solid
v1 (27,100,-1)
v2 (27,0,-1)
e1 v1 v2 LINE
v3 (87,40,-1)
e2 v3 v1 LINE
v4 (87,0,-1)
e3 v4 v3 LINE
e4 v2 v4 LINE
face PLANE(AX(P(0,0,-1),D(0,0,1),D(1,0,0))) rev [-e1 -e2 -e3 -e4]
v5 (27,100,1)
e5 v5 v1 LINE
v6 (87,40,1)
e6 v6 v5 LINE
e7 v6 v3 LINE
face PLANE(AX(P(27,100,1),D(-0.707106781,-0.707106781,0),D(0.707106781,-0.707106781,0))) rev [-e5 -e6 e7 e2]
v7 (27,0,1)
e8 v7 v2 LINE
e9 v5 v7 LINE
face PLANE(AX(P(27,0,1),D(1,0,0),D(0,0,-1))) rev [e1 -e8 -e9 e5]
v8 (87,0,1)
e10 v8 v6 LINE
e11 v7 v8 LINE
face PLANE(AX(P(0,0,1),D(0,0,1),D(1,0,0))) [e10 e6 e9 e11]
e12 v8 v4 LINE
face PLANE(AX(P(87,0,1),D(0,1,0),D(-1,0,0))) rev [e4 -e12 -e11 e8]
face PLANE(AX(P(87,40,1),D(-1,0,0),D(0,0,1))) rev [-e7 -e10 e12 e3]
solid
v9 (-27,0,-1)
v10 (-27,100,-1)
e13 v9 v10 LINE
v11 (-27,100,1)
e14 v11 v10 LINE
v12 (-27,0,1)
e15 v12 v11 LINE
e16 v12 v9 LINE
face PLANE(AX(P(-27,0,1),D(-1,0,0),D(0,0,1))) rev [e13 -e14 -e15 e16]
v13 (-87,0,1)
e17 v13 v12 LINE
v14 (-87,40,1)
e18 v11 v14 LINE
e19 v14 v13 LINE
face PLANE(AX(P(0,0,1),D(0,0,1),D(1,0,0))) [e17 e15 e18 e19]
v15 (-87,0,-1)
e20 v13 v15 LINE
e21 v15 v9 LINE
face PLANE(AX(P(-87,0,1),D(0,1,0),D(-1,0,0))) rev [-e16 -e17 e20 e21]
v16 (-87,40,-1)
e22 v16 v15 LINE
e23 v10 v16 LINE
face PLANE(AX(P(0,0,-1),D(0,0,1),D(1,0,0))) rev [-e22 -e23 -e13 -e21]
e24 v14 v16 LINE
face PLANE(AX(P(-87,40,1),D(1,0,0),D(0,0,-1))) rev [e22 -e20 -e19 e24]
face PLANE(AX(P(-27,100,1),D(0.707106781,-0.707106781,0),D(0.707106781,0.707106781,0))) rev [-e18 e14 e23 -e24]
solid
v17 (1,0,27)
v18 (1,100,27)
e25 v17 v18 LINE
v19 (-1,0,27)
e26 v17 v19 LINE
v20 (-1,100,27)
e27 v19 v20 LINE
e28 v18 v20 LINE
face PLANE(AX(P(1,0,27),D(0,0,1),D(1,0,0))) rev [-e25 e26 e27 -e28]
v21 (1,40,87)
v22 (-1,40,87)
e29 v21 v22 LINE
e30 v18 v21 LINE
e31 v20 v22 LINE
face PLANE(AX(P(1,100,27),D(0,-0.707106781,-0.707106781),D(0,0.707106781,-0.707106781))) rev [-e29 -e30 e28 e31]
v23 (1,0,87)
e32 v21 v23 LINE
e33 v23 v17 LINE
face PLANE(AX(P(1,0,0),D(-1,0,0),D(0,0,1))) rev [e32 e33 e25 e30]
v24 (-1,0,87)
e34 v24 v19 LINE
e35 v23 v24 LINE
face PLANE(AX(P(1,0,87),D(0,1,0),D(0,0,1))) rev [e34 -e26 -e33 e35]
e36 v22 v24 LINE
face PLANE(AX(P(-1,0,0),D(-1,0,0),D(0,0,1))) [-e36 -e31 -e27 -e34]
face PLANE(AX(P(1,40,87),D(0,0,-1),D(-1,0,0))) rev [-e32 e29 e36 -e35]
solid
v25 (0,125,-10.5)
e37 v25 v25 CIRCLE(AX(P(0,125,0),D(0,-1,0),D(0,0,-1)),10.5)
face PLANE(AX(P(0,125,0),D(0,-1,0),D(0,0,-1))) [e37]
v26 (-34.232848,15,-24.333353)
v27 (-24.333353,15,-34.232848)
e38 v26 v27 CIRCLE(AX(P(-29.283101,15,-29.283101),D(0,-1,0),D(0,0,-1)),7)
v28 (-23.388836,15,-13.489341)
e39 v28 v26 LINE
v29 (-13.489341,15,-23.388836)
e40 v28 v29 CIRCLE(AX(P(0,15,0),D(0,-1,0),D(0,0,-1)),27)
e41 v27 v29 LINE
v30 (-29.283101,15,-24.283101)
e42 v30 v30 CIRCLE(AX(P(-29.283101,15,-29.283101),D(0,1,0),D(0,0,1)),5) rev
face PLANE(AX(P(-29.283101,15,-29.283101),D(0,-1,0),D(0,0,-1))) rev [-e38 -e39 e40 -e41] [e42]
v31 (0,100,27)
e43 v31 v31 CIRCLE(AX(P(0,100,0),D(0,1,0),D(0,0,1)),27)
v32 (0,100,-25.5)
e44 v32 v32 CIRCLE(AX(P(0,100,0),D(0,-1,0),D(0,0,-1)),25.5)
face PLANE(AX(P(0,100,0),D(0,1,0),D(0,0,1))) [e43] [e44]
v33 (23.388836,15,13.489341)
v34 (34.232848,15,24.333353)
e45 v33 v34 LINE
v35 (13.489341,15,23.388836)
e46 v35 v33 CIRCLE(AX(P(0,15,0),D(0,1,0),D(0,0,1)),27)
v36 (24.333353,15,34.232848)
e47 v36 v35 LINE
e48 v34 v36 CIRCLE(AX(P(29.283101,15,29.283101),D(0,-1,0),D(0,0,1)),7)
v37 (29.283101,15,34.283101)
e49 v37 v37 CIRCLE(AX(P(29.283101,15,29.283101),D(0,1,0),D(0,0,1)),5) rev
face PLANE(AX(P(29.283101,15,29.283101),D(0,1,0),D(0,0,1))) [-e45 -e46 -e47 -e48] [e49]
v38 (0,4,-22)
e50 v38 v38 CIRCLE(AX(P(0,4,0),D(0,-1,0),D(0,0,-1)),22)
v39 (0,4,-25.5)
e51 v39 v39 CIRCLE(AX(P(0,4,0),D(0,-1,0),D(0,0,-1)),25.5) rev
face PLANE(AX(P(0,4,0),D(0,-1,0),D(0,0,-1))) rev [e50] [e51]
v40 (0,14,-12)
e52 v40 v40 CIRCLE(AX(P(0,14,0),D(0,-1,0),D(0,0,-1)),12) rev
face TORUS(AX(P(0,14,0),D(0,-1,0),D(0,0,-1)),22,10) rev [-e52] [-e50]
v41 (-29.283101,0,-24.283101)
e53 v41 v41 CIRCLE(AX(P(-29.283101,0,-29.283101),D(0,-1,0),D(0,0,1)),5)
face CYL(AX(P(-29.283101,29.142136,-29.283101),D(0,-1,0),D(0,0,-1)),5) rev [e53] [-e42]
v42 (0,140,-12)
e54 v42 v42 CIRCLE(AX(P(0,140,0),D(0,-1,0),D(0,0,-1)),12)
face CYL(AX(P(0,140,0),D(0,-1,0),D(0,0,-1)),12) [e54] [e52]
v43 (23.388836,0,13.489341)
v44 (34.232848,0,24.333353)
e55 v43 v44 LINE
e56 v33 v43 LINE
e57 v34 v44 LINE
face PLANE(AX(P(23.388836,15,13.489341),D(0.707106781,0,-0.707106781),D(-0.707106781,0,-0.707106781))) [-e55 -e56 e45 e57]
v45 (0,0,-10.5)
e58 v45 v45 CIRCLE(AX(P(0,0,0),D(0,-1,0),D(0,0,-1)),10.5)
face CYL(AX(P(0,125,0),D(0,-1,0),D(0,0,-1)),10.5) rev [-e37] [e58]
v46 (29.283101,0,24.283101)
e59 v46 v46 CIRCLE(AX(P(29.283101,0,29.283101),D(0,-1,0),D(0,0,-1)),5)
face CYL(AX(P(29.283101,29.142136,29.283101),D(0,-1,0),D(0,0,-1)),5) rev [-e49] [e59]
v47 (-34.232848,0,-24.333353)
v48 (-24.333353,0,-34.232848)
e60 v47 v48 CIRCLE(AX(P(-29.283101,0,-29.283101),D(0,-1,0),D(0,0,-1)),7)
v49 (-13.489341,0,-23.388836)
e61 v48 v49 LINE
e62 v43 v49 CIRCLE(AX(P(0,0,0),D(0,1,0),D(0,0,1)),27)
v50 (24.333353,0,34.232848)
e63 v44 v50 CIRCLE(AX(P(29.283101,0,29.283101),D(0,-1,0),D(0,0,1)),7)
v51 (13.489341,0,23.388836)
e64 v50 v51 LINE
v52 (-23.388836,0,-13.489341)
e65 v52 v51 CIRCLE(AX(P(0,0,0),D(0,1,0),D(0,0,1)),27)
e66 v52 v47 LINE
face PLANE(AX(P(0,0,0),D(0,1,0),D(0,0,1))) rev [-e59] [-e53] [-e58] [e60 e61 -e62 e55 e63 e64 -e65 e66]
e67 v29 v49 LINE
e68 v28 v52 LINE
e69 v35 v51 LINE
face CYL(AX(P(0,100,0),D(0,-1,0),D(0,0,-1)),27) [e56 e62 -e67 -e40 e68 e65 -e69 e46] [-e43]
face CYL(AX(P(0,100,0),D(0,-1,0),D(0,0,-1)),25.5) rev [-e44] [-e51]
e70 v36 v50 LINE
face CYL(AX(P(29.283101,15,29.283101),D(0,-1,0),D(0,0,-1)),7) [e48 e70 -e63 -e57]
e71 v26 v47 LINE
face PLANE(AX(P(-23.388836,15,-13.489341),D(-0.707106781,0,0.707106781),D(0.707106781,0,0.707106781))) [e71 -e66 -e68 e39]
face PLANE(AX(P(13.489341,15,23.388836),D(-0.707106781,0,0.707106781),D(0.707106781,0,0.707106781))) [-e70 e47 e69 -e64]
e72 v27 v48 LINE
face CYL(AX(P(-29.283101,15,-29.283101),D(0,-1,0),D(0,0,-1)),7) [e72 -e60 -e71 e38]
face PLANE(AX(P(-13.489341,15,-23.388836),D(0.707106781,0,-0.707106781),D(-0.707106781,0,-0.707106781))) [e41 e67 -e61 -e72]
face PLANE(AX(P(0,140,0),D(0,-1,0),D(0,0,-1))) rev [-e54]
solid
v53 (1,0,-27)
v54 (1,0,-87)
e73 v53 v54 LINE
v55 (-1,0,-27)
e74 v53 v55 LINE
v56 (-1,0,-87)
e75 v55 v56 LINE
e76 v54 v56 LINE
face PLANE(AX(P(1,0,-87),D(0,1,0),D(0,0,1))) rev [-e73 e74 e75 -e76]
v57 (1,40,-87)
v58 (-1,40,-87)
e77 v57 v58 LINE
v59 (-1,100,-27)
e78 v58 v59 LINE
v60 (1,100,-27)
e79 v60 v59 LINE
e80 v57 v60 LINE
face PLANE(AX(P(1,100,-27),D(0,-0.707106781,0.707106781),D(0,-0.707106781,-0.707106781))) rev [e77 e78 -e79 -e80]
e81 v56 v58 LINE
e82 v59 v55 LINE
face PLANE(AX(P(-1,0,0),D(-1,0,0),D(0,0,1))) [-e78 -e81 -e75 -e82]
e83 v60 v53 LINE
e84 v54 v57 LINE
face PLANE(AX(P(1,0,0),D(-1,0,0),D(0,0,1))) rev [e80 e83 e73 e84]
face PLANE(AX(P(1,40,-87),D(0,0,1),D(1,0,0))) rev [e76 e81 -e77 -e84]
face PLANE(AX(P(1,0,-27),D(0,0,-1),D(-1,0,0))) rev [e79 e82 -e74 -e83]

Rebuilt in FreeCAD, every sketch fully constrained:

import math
import FreeCAD as App
import Part
import Sketcher
from FreeCAD import Vector
Q = App.Units.Quantity


def edges_at(feature, points):
    """Names of the edges that pass closest to the given points."""
    edges = feature.Shape.Edges
    near = lambda p: min(range(len(edges)), key=lambda i: edges[i].distToShape(Part.Vertex(*p))[0])
    return sorted({f"Edge{near(p) + 1}" for p in points})


def add_polygon(sketch, points):
    """Adds a closed chain of lines whose ends are joined by coincident constraints."""
    first, n = sketch.GeometryCount, len(points)
    for a, b in zip(points, points[1:] + points[:1]):
        sketch.addGeometry(Part.LineSegment(App.Vector(*a, 0), App.Vector(*b, 0)), False)
    for i in range(n):
        sketch.addConstraint(Sketcher.Constraint("Coincident", first + i, 2, first + (i + 1) % n, 1))

doc = App.newDocument("Part")
body = doc.addObject("PartDesign::Body", "Body")

sketch1 = doc.addObject("Sketcher::SketchObject", "Sketch")
body.addObject(sketch1)
sketch1.AttachmentSupport = (doc.XZ_Plane, [""])
sketch1.MapMode = "FlatFace"
sketch1.addGeometry(Part.Circle(Vector(0, 0, 0), Vector(0, 0, 1), 27), False)
sketch1.addConstraint([
    Sketcher.Constraint("Coincident", 0, 3, -1, 1),
    Sketcher.Constraint("Diameter", 0, Q("54 mm")),
])
pad1 = doc.addObject("PartDesign::Pad", "Pad")
body.addObject(pad1)
pad1.Profile = sketch1
pad1.Length = 100
pad1.Reversed = True

sketch2 = doc.addObject("Sketcher::SketchObject", "Sketch001")
body.addObject(sketch2)
sketch2.AttachmentSupport = (doc.XZ_Plane, [""])
sketch2.MapMode = "FlatFace"
sketch2.addGeometry(Part.Circle(Vector(0, 0, 0), Vector(0, 0, 1), 25.5), False)
sketch2.addConstraint([
    Sketcher.Constraint("Coincident", 0, 3, -1, 1),
    Sketcher.Constraint("Diameter", 0, Q("51 mm")),
])
pocket1 = doc.addObject("PartDesign::Pocket", "Pocket")
body.addObject(pocket1)
pocket1.Profile = sketch2
pocket1.Type = "ThroughAll"

sketch3 = doc.addObject("Sketcher::SketchObject", "Sketch002")
body.addObject(sketch3)
sketch3.AttachmentSupport = (doc.XZ_Plane, [""])
sketch3.MapMode = "FlatFace"
sketch3.addGeometry(Part.Circle(Vector(0, 0, 0), Vector(0, 0, 1), 27), False)
sketch3.addConstraint([
    Sketcher.Constraint("Coincident", 0, 3, -1, 1),
    Sketcher.Constraint("Diameter", 0, Q("54 mm")),
])
pad2 = doc.addObject("PartDesign::Pad", "Pad001")
body.addObject(pad2)
pad2.Profile = sketch3
pad2.Length = 4
pad2.Reversed = True

sketch4 = doc.addObject("Sketcher::SketchObject", "Sketch003")
body.addObject(sketch4)
sketch4.AttachmentSupport = (doc.XZ_Plane, [""])
sketch4.MapMode = "FlatFace"
sketch4.addGeometry(Part.Circle(Vector(0, 0, 0), Vector(0, 0, 1), 12), False)
sketch4.addConstraint([
    Sketcher.Constraint("Coincident", 0, 3, -1, 1),
    Sketcher.Constraint("Diameter", 0, Q("24 mm")),
])
pad3 = doc.addObject("PartDesign::Pad", "Pad002")
body.addObject(pad3)
pad3.Profile = sketch4
pad3.Length = 140
pad3.Reversed = True

sketch5 = doc.addObject("Sketcher::SketchObject", "Sketch004")
body.addObject(sketch5)
sketch5.AttachmentSupport = (doc.XZ_Plane, [""])
sketch5.MapMode = "FlatFace"
sketch5.addGeometry(Part.Circle(Vector(0, 0, 0), Vector(0, 0, 1), 10.5), False)
sketch5.addConstraint([
    Sketcher.Constraint("Coincident", 0, 3, -1, 1),
    Sketcher.Constraint("Diameter", 0, Q("21 mm")),
])
pocket2 = doc.addObject("PartDesign::Pocket", "Pocket001")
body.addObject(pocket2)
pocket2.Profile = sketch5
pocket2.Length = 125
doc.recompute()

fillet = doc.addObject("PartDesign::Fillet", "Fillet")
body.addObject(fillet)
fillet.Base = (pocket2, edges_at(pocket2, [(0, 4, 12)]))
fillet.Radius = 10

sketch6 = doc.addObject("Sketcher::SketchObject", "Sketch005")
body.addObject(sketch6)
sketch6.AttachmentSupport = (doc.XZ_Plane, [""])
sketch6.MapMode = "FlatFace"
sketch6.addGeometry([
    Part.LineSegment(Vector(24.333353, 34.232848, 0), Vector(13.489341, 23.388836, 0)),
    Part.LineSegment(Vector(13.489341, 23.388836, 0), Vector(23.388836, 13.489341, 0)),
    Part.LineSegment(Vector(23.388836, 13.489341, 0), Vector(34.232848, 24.333353, 0)),
    Part.ArcOfCircle(Part.Circle(Vector(29.283101, 29.283101, 0), Vector(0, 0, 1), 7), math.radians(-45), math.radians(135)),
    Part.LineSegment(Vector(-23.388836, -13.489341, 0), Vector(-34.232848, -24.333353, 0)),
    Part.ArcOfCircle(Part.Circle(Vector(-29.283101, -29.283101, 0), Vector(0, 0, 1), 7), math.radians(135), math.radians(315)),
    Part.LineSegment(Vector(-24.333353, -34.232848, 0), Vector(-13.489341, -23.388836, 0)),
    Part.LineSegment(Vector(-13.489341, -23.388836, 0), Vector(-23.388836, -13.489341, 0)),
], False)
sketch6.addConstraint([
    Sketcher.Constraint("Coincident", 0, 2, 1, 1),
    Sketcher.Constraint("Coincident", 1, 2, 2, 1),
    Sketcher.Constraint("Tangent", 2, 2, 3, 1),
    Sketcher.Constraint("Tangent", 3, 2, 0, 1),
    Sketcher.Constraint("Tangent", 4, 2, 5, 1),
    Sketcher.Constraint("Tangent", 5, 2, 6, 1),
    Sketcher.Constraint("Coincident", 6, 2, 7, 1),
    Sketcher.Constraint("Coincident", 7, 2, 4, 1),
    Sketcher.Constraint("Equal", 3, 5),
    Sketcher.Constraint("Symmetric", 3, 3, 5, 3, -1, 1),
    Sketcher.Constraint("Symmetric", 0, 2, 6, 2, -1, 1),
    Sketcher.Constraint("Symmetric", 1, 2, 7, 2, -1, 1),
    Sketcher.Constraint("Perpendicular", 0, 1),
    Sketcher.Constraint("Perpendicular", 1, 2),
    Sketcher.Constraint("Radius", 3, Q("7 mm")),
    Sketcher.Constraint("Angle", 0, Q("-135 deg")),
    Sketcher.Constraint("DistanceX", -1, 1, 3, 3, Q("29.283101 mm")),
    Sketcher.Constraint("DistanceY", -1, 1, 3, 3, Q("29.283101 mm")),
    Sketcher.Constraint("Distance", 0, Q("15.335749 mm")),
])
pad4 = doc.addObject("PartDesign::Pad", "Pad003")
body.addObject(pad4)
pad4.Profile = sketch6
pad4.Length = 15
pad4.Reversed = True

sketch7 = doc.addObject("Sketcher::SketchObject", "Sketch006")
body.addObject(sketch7)
sketch7.AttachmentSupport = (doc.XZ_Plane, [""])
sketch7.MapMode = "FlatFace"
sketch7.addGeometry([
    Part.Circle(Vector(29.283101, 29.283101, 0), Vector(0, 0, 1), 5),
    Part.Circle(Vector(-29.283101, -29.283101, 0), Vector(0, 0, 1), 5),
], False)
sketch7.addConstraint([
    Sketcher.Constraint("Equal", 0, 1),
    Sketcher.Constraint("Symmetric", 0, 3, 1, 3, -1, 1),
    Sketcher.Constraint("Diameter", 0, Q("10 mm")),
    Sketcher.Constraint("DistanceX", -1, 1, 0, 3, Q("29.283101 mm")),
    Sketcher.Constraint("DistanceY", -1, 1, 0, 3, Q("29.283101 mm")),
])
pocket3 = doc.addObject("PartDesign::Pocket", "Pocket002")
body.addObject(pocket3)
pocket3.Profile = sketch7
pocket3.Length = 15
body2 = doc.addObject("PartDesign::Body", "Body001")

sketch8 = doc.addObject("Sketcher::SketchObject", "Sketch007")
body2.addObject(sketch8)
sketch8.AttachmentSupport = (doc.getObject("XY_Plane001"), [""])
sketch8.MapMode = "FlatFace"
add_polygon(sketch8, [(87, 40), (27, 100), (27, 0), (87, 0)])
sketch8.addConstraint([
    Sketcher.Constraint("Vertical", 1),
    Sketcher.Constraint("Horizontal", 2),
    Sketcher.Constraint("Vertical", 3),
    Sketcher.Constraint("PointOnObject", 1, 2, -1),
    Sketcher.Constraint("DistanceX", 2, 1, 2, 2, Q("60 mm")),
    Sketcher.Constraint("DistanceY", 1, 2, 1, 1, Q("100 mm")),
    Sketcher.Constraint("DistanceY", 3, 1, 3, 2, Q("40 mm")),
    Sketcher.Constraint("DistanceX", -1, 1, 0, 2, Q("27 mm")),
])
pad5 = doc.addObject("PartDesign::Pad", "Pad004")
body2.addObject(pad5)
pad5.Profile = sketch8
pad5.Length = 2
pad5.Midplane = True
body3 = doc.addObject("PartDesign::Body", "Body002")

sketch9 = doc.addObject("Sketcher::SketchObject", "Sketch008")
body3.addObject(sketch9)
sketch9.AttachmentSupport = (doc.getObject("XY_Plane002"), [""])
sketch9.MapMode = "FlatFace"
add_polygon(sketch9, [(-87, 0), (-27, 0), (-27, 100), (-87, 40)])
sketch9.addConstraint([
    Sketcher.Constraint("Horizontal", 0),
    Sketcher.Constraint("Vertical", 1),
    Sketcher.Constraint("Vertical", 3),
    Sketcher.Constraint("PointOnObject", 0, 2, -1),
    Sketcher.Constraint("DistanceX", 0, 1, 0, 2, Q("60 mm")),
    Sketcher.Constraint("DistanceY", 1, 1, 1, 2, Q("100 mm")),
    Sketcher.Constraint("DistanceY", 3, 2, 3, 1, Q("40 mm")),
    Sketcher.Constraint("DistanceX", 0, 2, -1, 1, Q("27 mm")),
])
pad6 = doc.addObject("PartDesign::Pad", "Pad005")
body3.addObject(pad6)
pad6.Profile = sketch9
pad6.Length = 2
pad6.Midplane = True
body4 = doc.addObject("PartDesign::Body", "Body003")

sketch10 = doc.addObject("Sketcher::SketchObject", "Sketch009")
body4.addObject(sketch10)
sketch10.AttachmentSupport = (doc.getObject("YZ_Plane003"), [""])
sketch10.MapMode = "FlatFace"
add_polygon(sketch10, [(100, 27), (40, 87), (0, 87), (0, 27)])
sketch10.addConstraint([
    Sketcher.Constraint("Horizontal", 1),
    Sketcher.Constraint("Vertical", 2),
    Sketcher.Constraint("Horizontal", 3),
    Sketcher.Constraint("PointOnObject", 1, 2, -2),
    Sketcher.Constraint("DistanceX", 1, 2, 1, 1, Q("40 mm")),
    Sketcher.Constraint("DistanceX", 3, 1, 3, 2, Q("100 mm")),
    Sketcher.Constraint("DistanceY", 2, 2, 2, 1, Q("60 mm")),
    Sketcher.Constraint("DistanceY", -1, 1, 0, 2, Q("87 mm")),
])
pad7 = doc.addObject("PartDesign::Pad", "Pad006")
body4.addObject(pad7)
pad7.Profile = sketch10
pad7.Length = 2
pad7.Midplane = True
body5 = doc.addObject("PartDesign::Body", "Body004")

sketch11 = doc.addObject("Sketcher::SketchObject", "Sketch010")
body5.addObject(sketch11)
sketch11.AttachmentSupport = (doc.getObject("YZ_Plane004"), [""])
sketch11.MapMode = "FlatFace"
add_polygon(sketch11, [(100, -27), (0, -27), (0, -87), (40, -87)])
sketch11.addConstraint([
    Sketcher.Constraint("Horizontal", 0),
    Sketcher.Constraint("Vertical", 1),
    Sketcher.Constraint("Horizontal", 2),
    Sketcher.Constraint("PointOnObject", 0, 2, -2),
    Sketcher.Constraint("DistanceX", 0, 2, 0, 1, Q("100 mm")),
    Sketcher.Constraint("DistanceX", 2, 1, 2, 2, Q("40 mm")),
    Sketcher.Constraint("DistanceY", 1, 2, 1, 1, Q("60 mm")),
    Sketcher.Constraint("DistanceY", 0, 2, -1, 1, Q("27 mm")),
])
pad8 = doc.addObject("PartDesign::Pad", "Pad007")
body5.addObject(pad8)
pad8.Profile = sketch11
pad8.Length = 2
pad8.Midplane = True

doc.recompute()
